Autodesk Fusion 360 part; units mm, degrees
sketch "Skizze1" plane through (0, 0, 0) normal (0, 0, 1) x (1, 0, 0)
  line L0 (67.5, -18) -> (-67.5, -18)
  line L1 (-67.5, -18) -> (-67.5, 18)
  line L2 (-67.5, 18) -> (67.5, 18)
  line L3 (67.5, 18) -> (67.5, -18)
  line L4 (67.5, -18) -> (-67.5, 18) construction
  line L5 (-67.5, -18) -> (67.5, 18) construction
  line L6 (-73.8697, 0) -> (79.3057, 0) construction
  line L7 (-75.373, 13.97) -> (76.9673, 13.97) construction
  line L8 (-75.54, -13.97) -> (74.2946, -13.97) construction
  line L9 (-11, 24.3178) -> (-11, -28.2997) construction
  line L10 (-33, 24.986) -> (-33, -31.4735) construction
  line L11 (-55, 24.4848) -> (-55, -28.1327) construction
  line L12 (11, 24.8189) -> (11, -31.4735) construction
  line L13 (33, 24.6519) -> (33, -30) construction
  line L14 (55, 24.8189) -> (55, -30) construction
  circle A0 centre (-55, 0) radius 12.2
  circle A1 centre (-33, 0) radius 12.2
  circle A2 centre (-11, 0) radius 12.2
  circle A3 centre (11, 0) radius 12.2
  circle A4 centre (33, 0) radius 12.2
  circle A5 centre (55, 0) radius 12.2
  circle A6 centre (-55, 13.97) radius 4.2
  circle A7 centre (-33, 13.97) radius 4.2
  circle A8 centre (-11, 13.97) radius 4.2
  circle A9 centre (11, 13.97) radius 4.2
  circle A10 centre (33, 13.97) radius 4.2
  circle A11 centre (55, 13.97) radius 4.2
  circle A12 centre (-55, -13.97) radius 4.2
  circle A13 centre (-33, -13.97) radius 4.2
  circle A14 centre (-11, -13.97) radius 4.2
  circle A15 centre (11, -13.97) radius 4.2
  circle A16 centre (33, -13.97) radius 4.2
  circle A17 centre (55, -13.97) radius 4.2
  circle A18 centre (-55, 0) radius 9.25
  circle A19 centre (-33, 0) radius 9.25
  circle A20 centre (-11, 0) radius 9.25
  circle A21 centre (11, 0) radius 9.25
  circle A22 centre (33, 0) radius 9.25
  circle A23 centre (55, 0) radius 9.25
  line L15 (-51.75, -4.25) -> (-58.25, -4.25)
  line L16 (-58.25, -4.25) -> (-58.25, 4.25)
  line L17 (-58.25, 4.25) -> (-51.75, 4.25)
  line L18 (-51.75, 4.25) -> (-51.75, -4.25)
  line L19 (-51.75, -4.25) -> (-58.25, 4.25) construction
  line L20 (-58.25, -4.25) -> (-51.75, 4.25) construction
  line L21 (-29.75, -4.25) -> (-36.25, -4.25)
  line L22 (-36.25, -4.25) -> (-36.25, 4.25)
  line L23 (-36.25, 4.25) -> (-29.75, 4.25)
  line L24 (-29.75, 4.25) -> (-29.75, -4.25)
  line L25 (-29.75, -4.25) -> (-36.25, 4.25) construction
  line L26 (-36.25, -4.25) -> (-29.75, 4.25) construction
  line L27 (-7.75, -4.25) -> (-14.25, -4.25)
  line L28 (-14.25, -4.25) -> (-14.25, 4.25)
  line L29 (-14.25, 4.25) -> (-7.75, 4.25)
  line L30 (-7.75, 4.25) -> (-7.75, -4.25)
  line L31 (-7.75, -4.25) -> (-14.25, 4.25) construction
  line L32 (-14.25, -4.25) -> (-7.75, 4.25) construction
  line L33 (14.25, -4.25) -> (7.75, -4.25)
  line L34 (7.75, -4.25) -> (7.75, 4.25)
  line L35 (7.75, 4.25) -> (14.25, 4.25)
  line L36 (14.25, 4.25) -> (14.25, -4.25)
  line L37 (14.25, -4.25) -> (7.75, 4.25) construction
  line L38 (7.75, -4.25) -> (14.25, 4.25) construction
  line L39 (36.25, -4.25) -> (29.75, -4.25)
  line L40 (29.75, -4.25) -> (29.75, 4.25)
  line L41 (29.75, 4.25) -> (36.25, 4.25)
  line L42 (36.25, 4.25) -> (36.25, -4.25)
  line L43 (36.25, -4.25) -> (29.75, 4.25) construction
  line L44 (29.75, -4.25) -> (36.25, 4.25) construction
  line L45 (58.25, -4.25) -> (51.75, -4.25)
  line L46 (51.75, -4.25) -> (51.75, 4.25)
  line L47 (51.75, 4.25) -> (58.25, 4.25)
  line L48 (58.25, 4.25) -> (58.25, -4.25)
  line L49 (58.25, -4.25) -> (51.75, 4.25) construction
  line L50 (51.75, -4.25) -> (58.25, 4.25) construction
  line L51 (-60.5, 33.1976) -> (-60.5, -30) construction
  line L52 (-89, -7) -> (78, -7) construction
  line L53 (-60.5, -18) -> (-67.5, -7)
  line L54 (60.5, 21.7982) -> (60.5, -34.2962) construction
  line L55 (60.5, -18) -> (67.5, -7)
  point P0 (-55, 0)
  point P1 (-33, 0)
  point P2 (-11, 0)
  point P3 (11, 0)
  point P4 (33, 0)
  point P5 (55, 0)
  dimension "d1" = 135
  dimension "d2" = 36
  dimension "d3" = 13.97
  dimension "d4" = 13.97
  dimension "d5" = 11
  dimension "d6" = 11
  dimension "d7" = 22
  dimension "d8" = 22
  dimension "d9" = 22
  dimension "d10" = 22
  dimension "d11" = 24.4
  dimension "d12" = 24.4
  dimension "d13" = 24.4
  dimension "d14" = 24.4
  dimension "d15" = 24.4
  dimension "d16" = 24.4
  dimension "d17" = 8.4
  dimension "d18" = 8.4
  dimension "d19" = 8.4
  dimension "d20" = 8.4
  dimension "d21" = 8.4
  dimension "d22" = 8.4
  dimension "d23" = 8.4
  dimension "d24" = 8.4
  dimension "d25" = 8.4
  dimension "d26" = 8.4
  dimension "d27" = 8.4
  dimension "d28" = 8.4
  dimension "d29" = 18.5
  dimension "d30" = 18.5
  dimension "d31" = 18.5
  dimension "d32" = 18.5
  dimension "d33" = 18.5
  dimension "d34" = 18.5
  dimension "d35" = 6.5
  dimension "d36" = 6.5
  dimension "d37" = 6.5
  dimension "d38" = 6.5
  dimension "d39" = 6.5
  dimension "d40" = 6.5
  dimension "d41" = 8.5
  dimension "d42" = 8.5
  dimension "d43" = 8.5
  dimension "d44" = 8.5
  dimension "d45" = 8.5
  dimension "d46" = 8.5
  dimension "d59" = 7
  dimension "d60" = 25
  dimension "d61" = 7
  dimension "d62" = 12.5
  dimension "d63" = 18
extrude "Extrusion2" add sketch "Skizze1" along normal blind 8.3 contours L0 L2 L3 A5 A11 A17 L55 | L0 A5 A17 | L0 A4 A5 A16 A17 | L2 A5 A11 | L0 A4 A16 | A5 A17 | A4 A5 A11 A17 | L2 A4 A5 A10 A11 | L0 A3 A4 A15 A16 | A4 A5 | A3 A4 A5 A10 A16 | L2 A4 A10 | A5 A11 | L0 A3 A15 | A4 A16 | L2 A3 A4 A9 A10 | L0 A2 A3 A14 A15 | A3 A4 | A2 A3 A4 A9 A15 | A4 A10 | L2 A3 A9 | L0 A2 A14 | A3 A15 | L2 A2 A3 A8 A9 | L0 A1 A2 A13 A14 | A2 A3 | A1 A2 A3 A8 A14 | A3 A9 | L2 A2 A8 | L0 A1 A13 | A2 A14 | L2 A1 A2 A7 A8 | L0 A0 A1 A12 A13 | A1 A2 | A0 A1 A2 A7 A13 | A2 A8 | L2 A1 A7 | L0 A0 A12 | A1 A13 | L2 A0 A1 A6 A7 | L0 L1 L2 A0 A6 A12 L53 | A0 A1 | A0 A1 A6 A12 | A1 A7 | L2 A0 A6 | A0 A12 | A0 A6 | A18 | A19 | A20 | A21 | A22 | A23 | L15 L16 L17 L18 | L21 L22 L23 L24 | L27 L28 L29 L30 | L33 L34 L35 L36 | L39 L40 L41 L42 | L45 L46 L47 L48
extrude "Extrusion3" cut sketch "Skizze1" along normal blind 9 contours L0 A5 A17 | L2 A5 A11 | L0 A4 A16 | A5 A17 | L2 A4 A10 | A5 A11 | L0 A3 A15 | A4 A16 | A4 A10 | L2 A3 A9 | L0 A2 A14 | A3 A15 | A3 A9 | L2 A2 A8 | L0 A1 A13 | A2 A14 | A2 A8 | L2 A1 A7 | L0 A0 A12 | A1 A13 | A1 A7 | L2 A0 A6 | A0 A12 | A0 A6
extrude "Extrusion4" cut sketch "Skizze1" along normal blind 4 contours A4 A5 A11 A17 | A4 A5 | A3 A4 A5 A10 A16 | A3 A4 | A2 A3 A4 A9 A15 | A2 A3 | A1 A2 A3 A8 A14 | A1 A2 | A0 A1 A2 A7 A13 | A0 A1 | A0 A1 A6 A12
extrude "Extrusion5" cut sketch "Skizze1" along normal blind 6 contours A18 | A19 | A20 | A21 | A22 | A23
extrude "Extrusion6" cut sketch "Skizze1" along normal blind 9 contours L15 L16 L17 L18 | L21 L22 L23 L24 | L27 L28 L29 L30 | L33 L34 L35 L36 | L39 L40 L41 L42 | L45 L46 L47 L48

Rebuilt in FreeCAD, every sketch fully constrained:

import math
import FreeCAD as App
import Part
import Sketcher
from FreeCAD import Vector
Q = App.Units.Quantity

doc = App.newDocument("Part")
body = doc.addObject("PartDesign::Body", "Body")

sketch1 = body.newObject("Sketcher::SketchObject", "Sketch")
sketch1.AttachmentSupport = (doc.getObject("XY_Plane"), [""])
sketch1.MapMode = "FlatFace"
sketch1.addGeometry(Part.LineSegment(Vector(60.5, -18, 0), Vector(67.5, -7, 0)), False)
sketch1.addGeometry(Part.LineSegment(Vector(67.5, -7, 0), Vector(67.5, 18, 0)), False)
sketch1.addGeometry(Part.LineSegment(Vector(67.5, 18, 0), Vector(-67.5, 18, 0)), False)
sketch1.addGeometry(Part.LineSegment(Vector(-67.5, 18, 0), Vector(-67.5, -7, 0)), False)
sketch1.addGeometry(Part.LineSegment(Vector(-67.5, -7, 0), Vector(-60.5, -18, 0)), False)
sketch1.addGeometry(Part.LineSegment(Vector(-60.5, -18, 0), Vector(60.5, -18, 0)), False)
sketch1.addConstraint(Sketcher.Constraint("Coincident", 0, 2, 1, 1))
sketch1.addConstraint(Sketcher.Constraint("Coincident", 1, 2, 2, 1))
sketch1.addConstraint(Sketcher.Constraint("Coincident", 2, 2, 3, 1))
sketch1.addConstraint(Sketcher.Constraint("Coincident", 3, 2, 4, 1))
sketch1.addConstraint(Sketcher.Constraint("Coincident", 4, 2, 5, 1))
sketch1.addConstraint(Sketcher.Constraint("Coincident", 5, 2, 0, 1))
sketch1.addConstraint(Sketcher.Constraint("Vertical", 1))
sketch1.addConstraint(Sketcher.Constraint("Horizontal", 2))
sketch1.addConstraint(Sketcher.Constraint("Vertical", 3))
sketch1.addConstraint(Sketcher.Constraint("Horizontal", 5))
sketch1.addConstraint(Sketcher.Constraint("Symmetric", 0, 2, 3, 2, -2))
sketch1.addConstraint(Sketcher.Constraint("Equal", 0, 4))
sketch1.addConstraint(Sketcher.Constraint("DistanceX", 2, 2, 2, 1, Q("135 mm")))
sketch1.addConstraint(Sketcher.Constraint("DistanceY", 1, 1, 1, 2, Q("25 mm")))
sketch1.addConstraint(Sketcher.Constraint("DistanceY", 0, 2, -1, 1, Q("7 mm")))
sketch1.addConstraint(Sketcher.Constraint("DistanceY", 4, 2, -1, 1, Q("18 mm")))
sketch1.addConstraint(Sketcher.Constraint("DistanceX", 3, 2, 4, 2, Q("7 mm")))
pad1 = body.newObject("PartDesign::Pad", "Pad")
pad1.Profile = sketch1
pad1.Length = 8.3

sketch2 = body.newObject("Sketcher::SketchObject", "Sketch001")
sketch2.AttachmentSupport = (doc.getObject("XY_Plane"), [""])
sketch2.MapMode = "FlatFace"
sketch2.addGeometry(Part.LineSegment(Vector(53.817164, -18, 0), Vector(56.182836, -18, 0)), False)
sketch2.addGeometry(Part.ArcOfCircle(Part.Circle(Vector(55, -13.97, 0), Vector(0, 0, 1), 4.2), math.radians(-73.642636), math.radians(253.642636)), False)
sketch2.addGeometry(Part.LineSegment(Vector(56.182836, 18, 0), Vector(53.817164, 18, 0)), False)
sketch2.addGeometry(Part.ArcOfCircle(Part.Circle(Vector(55, 13.97, 0), Vector(0, 0, 1), 4.2), math.radians(106.357364), math.radians(433.642636)), False)
sketch2.addGeometry(Part.LineSegment(Vector(31.817164, -18, 0), Vector(34.182836, -18, 0)), False)
sketch2.addGeometry(Part.ArcOfCircle(Part.Circle(Vector(33, -13.97, 0), Vector(0, 0, 1), 4.2), math.radians(-73.642636), math.radians(253.642636)), False)
sketch2.addGeometry(Part.LineSegment(Vector(34.182836, 18, 0), Vector(31.817164, 18, 0)), False)
sketch2.addGeometry(Part.ArcOfCircle(Part.Circle(Vector(33, 13.97, 0), Vector(0, 0, 1), 4.2), math.radians(106.357364), math.radians(433.642636)), False)
sketch2.addGeometry(Part.LineSegment(Vector(9.817164, -18, 0), Vector(12.182836, -18, 0)), False)
sketch2.addGeometry(Part.ArcOfCircle(Part.Circle(Vector(11, -13.97, 0), Vector(0, 0, 1), 4.2), math.radians(-73.642636), math.radians(253.642636)), False)
sketch2.addGeometry(Part.LineSegment(Vector(12.182836, 18, 0), Vector(9.817164, 18, 0)), False)
sketch2.addGeometry(Part.ArcOfCircle(Part.Circle(Vector(11, 13.97, 0), Vector(0, 0, 1), 4.2), math.radians(106.357364), math.radians(433.642636)), False)
sketch2.addGeometry(Part.LineSegment(Vector(-12.182836, -18, 0), Vector(-9.817164, -18, 0)), False)
sketch2.addGeometry(Part.ArcOfCircle(Part.Circle(Vector(-11, -13.97, 0), Vector(0, 0, 1), 4.2), math.radians(-73.642636), math.radians(253.642636)), False)
sketch2.addGeometry(Part.LineSegment(Vector(-9.817164, 18, 0), Vector(-12.182836, 18, 0)), False)
sketch2.addGeometry(Part.ArcOfCircle(Part.Circle(Vector(-11, 13.97, 0), Vector(0, 0, 1), 4.2), math.radians(106.357364), math.radians(433.642636)), False)
sketch2.addGeometry(Part.LineSegment(Vector(-34.182836, -18, 0), Vector(-31.817164, -18, 0)), False)
sketch2.addGeometry(Part.ArcOfCircle(Part.Circle(Vector(-33, -13.97, 0), Vector(0, 0, 1), 4.2), math.radians(-73.642636), math.radians(253.642636)), False)
sketch2.addGeometry(Part.LineSegment(Vector(-31.817164, 18, 0), Vector(-34.182836, 18, 0)), False)
sketch2.addGeometry(Part.ArcOfCircle(Part.Circle(Vector(-33, 13.97, 0), Vector(0, 0, 1), 4.2), math.radians(106.357364), math.radians(433.642636)), False)
sketch2.addGeometry(Part.LineSegment(Vector(-56.182836, -18, 0), Vector(-53.817164, -18, 0)), False)
sketch2.addGeometry(Part.ArcOfCircle(Part.Circle(Vector(-55, -13.97, 0), Vector(0, 0, 1), 4.2), math.radians(-73.642636), math.radians(253.642636)), False)
sketch2.addGeometry(Part.LineSegment(Vector(-53.817164, 18, 0), Vector(-56.182836, 18, 0)), False)
sketch2.addGeometry(Part.ArcOfCircle(Part.Circle(Vector(-55, 13.97, 0), Vector(0, 0, 1), 4.2), math.radians(106.357364), math.radians(433.642636)), False)
sketch2.addConstraint(Sketcher.Constraint("Coincident", 0, 1, 1, 2))
sketch2.addConstraint(Sketcher.Constraint("Coincident", 1, 1, 0, 2))
sketch2.addConstraint(Sketcher.Constraint("Coincident", 2, 1, 3, 2))
sketch2.addConstraint(Sketcher.Constraint("Coincident", 3, 1, 2, 2))
sketch2.addConstraint(Sketcher.Constraint("Coincident", 4, 1, 5, 2))
sketch2.addConstraint(Sketcher.Constraint("Coincident", 5, 1, 4, 2))
sketch2.addConstraint(Sketcher.Constraint("Coincident", 6, 1, 7, 2))
sketch2.addConstraint(Sketcher.Constraint("Coincident", 7, 1, 6, 2))
sketch2.addConstraint(Sketcher.Constraint("Coincident", 8, 1, 9, 2))
sketch2.addConstraint(Sketcher.Constraint("Coincident", 9, 1, 8, 2))
sketch2.addConstraint(Sketcher.Constraint("Coincident", 10, 1, 11, 2))
sketch2.addConstraint(Sketcher.Constraint("Coincident", 11, 1, 10, 2))
sketch2.addConstraint(Sketcher.Constraint("Coincident", 12, 1, 13, 2))
sketch2.addConstraint(Sketcher.Constraint("Coincident", 13, 1, 12, 2))
sketch2.addConstraint(Sketcher.Constraint("Coincident", 14, 1, 15, 2))
sketch2.addConstraint(Sketcher.Constraint("Coincident", 15, 1, 14, 2))
sketch2.addConstraint(Sketcher.Constraint("Coincident", 16, 1, 17, 2))
sketch2.addConstraint(Sketcher.Constraint("Coincident", 17, 1, 16, 2))
sketch2.addConstraint(Sketcher.Constraint("Coincident", 18, 1, 19, 2))
sketch2.addConstraint(Sketcher.Constraint("Coincident", 19, 1, 18, 2))
sketch2.addConstraint(Sketcher.Constraint("Coincident", 20, 1, 21, 2))
sketch2.addConstraint(Sketcher.Constraint("Coincident", 21, 1, 20, 2))
sketch2.addConstraint(Sketcher.Constraint("Coincident", 22, 1, 23, 2))
sketch2.addConstraint(Sketcher.Constraint("Coincident", 23, 1, 22, 2))
sketch2.addConstraint(Sketcher.Constraint("Horizontal", 0))
sketch2.addConstraint(Sketcher.Constraint("Horizontal", 2))
sketch2.addConstraint(Sketcher.Constraint("Horizontal", 4))
sketch2.addConstraint(Sketcher.Constraint("Horizontal", 6))
sketch2.addConstraint(Sketcher.Constraint("Horizontal", 8))
sketch2.addConstraint(Sketcher.Constraint("Horizontal", 10))
sketch2.addConstraint(Sketcher.Constraint("Horizontal", 12))
sketch2.addConstraint(Sketcher.Constraint("Horizontal", 14))
sketch2.addConstraint(Sketcher.Constraint("Horizontal", 16))
sketch2.addConstraint(Sketcher.Constraint("Horizontal", 18))
sketch2.addConstraint(Sketcher.Constraint("Horizontal", 20))
sketch2.addConstraint(Sketcher.Constraint("Horizontal", 22))
sketch2.addConstraint(Sketcher.Constraint("Equal", 1, 3))
sketch2.addConstraint(Sketcher.Constraint("Equal", 3, 5))
sketch2.addConstraint(Sketcher.Constraint("Equal", 5, 7))
sketch2.addConstraint(Sketcher.Constraint("Equal", 7, 9))
sketch2.addConstraint(Sketcher.Constraint("Equal", 9, 11))
sketch2.addConstraint(Sketcher.Constraint("Equal", 11, 13))
sketch2.addConstraint(Sketcher.Constraint("Equal", 13, 15))
sketch2.addConstraint(Sketcher.Constraint("Equal", 15, 17))
sketch2.addConstraint(Sketcher.Constraint("Equal", 17, 19))
sketch2.addConstraint(Sketcher.Constraint("Equal", 19, 21))
sketch2.addConstraint(Sketcher.Constraint("Equal", 21, 23))
sketch2.addConstraint(Sketcher.Constraint("Symmetric", 11, 3, 13, 3, -1, 1))
sketch2.addConstraint(Sketcher.Constraint("Symmetric", 9, 3, 15, 3, -1, 1))
sketch2.addConstraint(Sketcher.Constraint("Symmetric", 7, 3, 17, 3, -1, 1))
sketch2.addConstraint(Sketcher.Constraint("Symmetric", 5, 3, 19, 3, -1, 1))
sketch2.addConstraint(Sketcher.Constraint("Symmetric", 3, 3, 21, 3, -1, 1))
sketch2.addConstraint(Sketcher.Constraint("Symmetric", 1, 3, 23, 3, -1, 1))
sketch2.addConstraint(Sketcher.Constraint("Symmetric", 9, 3, 13, 3, -2))
sketch2.addConstraint(Sketcher.Constraint("Symmetric", 5, 3, 17, 3, -2))
sketch2.addConstraint(Sketcher.Constraint("Symmetric", 1, 3, 21, 3, -2))
sketch2.addConstraint(Sketcher.Constraint("Horizontal", 1, 3, 5, 3))
sketch2.addConstraint(Sketcher.Constraint("Horizontal", 5, 3, 9, 3))
sketch2.addConstraint(Sketcher.Constraint("Horizontal", 1, 1, 4, 1))
sketch2.addConstraint(Sketcher.Constraint("Horizontal", 3, 1, 6, 1))
sketch2.addConstraint(Sketcher.Constraint("Horizontal", 5, 1, 8, 1))
sketch2.addConstraint(Sketcher.Constraint("Horizontal", 7, 1, 10, 1))
sketch2.addConstraint(Sketcher.Constraint("Horizontal", 9, 1, 12, 1))
sketch2.addConstraint(Sketcher.Constraint("Horizontal", 11, 1, 14, 1))
sketch2.addConstraint(Sketcher.Constraint("Horizontal", 13, 1, 16, 1))
sketch2.addConstraint(Sketcher.Constraint("Horizontal", 15, 1, 18, 1))
sketch2.addConstraint(Sketcher.Constraint("Horizontal", 17, 1, 20, 1))
sketch2.addConstraint(Sketcher.Constraint("Horizontal", 19, 1, 22, 1))
sketch2.addConstraint(Sketcher.Constraint("Vertical", 1, 1, 2, 1))
sketch2.addConstraint(Sketcher.Constraint("Radius", 1, Q("4.2 mm")))
sketch2.addConstraint(Sketcher.Constraint("DistanceX", -1, 1, 9, 3, Q("11 mm")))
sketch2.addConstraint(Sketcher.Constraint("DistanceY", 0, 1, -1, 1, Q("18 mm")))
sketch2.addConstraint(Sketcher.Constraint("DistanceX", 5, 3, 1, 3, Q("22 mm")))
sketch2.addConstraint(Sketcher.Constraint("DistanceX", 9, 3, 5, 3, Q("22 mm")))
sketch2.addConstraint(Sketcher.Constraint("DistanceY", 1, 3, -1, 1, Q("13.97 mm")))
pocket1 = body.newObject("PartDesign::Pocket", "Pocket")
pocket1.Profile = sketch2
pocket1.Length = 9
pocket1.Reversed = True

sketch3 = body.newObject("Sketcher::SketchObject", "Sketch002")
sketch3.AttachmentSupport = (doc.getObject("XY_Plane"), [""])
sketch3.MapMode = "FlatFace"
sketch3.addGeometry(Part.ArcOfCircle(Part.Circle(Vector(55, 0, 0), Vector(0, 0, 1), 12.2), math.radians(-154.374395), math.radians(-106.775955)), False)
sketch3.addGeometry(Part.ArcOfCircle(Part.Circle(Vector(55, -13.97, 0), Vector(0, 0, 1), 4.2), math.radians(33.028298), math.radians(146.971702)), False)
sketch3.addGeometry(Part.ArcOfCircle(Part.Circle(Vector(55, 0, 0), Vector(0, 0, 1), 12.2), math.radians(-73.224045), math.radians(73.224045)), False)
sketch3.addGeometry(Part.ArcOfCircle(Part.Circle(Vector(55, 13.97, 0), Vector(0, 0, 1), 4.2), math.radians(-146.971702), math.radians(-33.028298)), False)
sketch3.addGeometry(Part.ArcOfCircle(Part.Circle(Vector(55, 0, 0), Vector(0, 0, 1), 12.2), math.radians(106.775955), math.radians(154.374395)), False)
sketch3.addGeometry(Part.ArcOfCircle(Part.Circle(Vector(33, 0, 0), Vector(0, 0, 1), 12.2), math.radians(25.625605), math.radians(73.224045)), False)
sketch3.addGeometry(Part.ArcOfCircle(Part.Circle(Vector(33, 13.97, 0), Vector(0, 0, 1), 4.2), math.radians(-146.971702), math.radians(-33.028298)), False)
sketch3.addGeometry(Part.ArcOfCircle(Part.Circle(Vector(33, 0, 0), Vector(0, 0, 1), 12.2), math.radians(106.775955), math.radians(154.374395)), False)
sketch3.addGeometry(Part.ArcOfCircle(Part.Circle(Vector(11, 0, 0), Vector(0, 0, 1), 12.2), math.radians(25.625605), math.radians(73.224045)), False)
sketch3.addGeometry(Part.ArcOfCircle(Part.Circle(Vector(11, 13.97, 0), Vector(0, 0, 1), 4.2), math.radians(-146.971702), math.radians(-33.028298)), False)
sketch3.addGeometry(Part.ArcOfCircle(Part.Circle(Vector(11, 0, 0), Vector(0, 0, 1), 12.2), math.radians(106.775955), math.radians(154.374395)), False)
sketch3.addGeometry(Part.ArcOfCircle(Part.Circle(Vector(-11, 0, 0), Vector(0, 0, 1), 12.2), math.radians(25.625605), math.radians(73.224045)), False)
sketch3.addGeometry(Part.ArcOfCircle(Part.Circle(Vector(-11, 13.97, 0), Vector(0, 0, 1), 4.2), math.radians(-146.971702), math.radians(-33.028298)), False)
sketch3.addGeometry(Part.ArcOfCircle(Part.Circle(Vector(-11, 0, 0), Vector(0, 0, 1), 12.2), math.radians(106.775955), math.radians(154.374395)), False)
sketch3.addGeometry(Part.ArcOfCircle(Part.Circle(Vector(-33, 0, 0), Vector(0, 0, 1), 12.2), math.radians(25.625605), math.radians(73.224045)), False)
sketch3.addGeometry(Part.ArcOfCircle(Part.Circle(Vector(-33, 13.97, 0), Vector(0, 0, 1), 4.2), math.radians(-146.971702), math.radians(-33.028298)), False)
sketch3.addGeometry(Part.ArcOfCircle(Part.Circle(Vector(-33, 0, 0), Vector(0, 0, 1), 12.2), math.radians(106.775955), math.radians(154.374395)), False)
sketch3.addGeometry(Part.ArcOfCircle(Part.Circle(Vector(-55, 0, 0), Vector(0, 0, 1), 12.2), math.radians(25.625605), math.radians(73.224045)), False)
sketch3.addGeometry(Part.ArcOfCircle(Part.Circle(Vector(-55, 13.97, 0), Vector(0, 0, 1), 4.2), math.radians(-146.971702), math.radians(-33.028298)), False)
sketch3.addGeometry(Part.ArcOfCircle(Part.Circle(Vector(-55, 0, 0), Vector(0, 0, 1), 12.2), math.radians(106.775955), math.radians(253.224045)), False)
sketch3.addGeometry(Part.ArcOfCircle(Part.Circle(Vector(-55, -13.97, 0), Vector(0, 0, 1), 4.2), math.radians(33.028298), math.radians(146.971702)), False)
sketch3.addGeometry(Part.ArcOfCircle(Part.Circle(Vector(-55, 0, 0), Vector(0, 0, 1), 12.2), math.radians(-73.224045), math.radians(-25.625605)), False)
sketch3.addGeometry(Part.ArcOfCircle(Part.Circle(Vector(-33, 0, 0), Vector(0, 0, 1), 12.2), math.radians(-154.374395), math.radians(-106.775955)), False)
sketch3.addGeometry(Part.ArcOfCircle(Part.Circle(Vector(-33, -13.97, 0), Vector(0, 0, 1), 4.2), math.radians(33.028298), math.radians(146.971702)), False)
sketch3.addGeometry(Part.ArcOfCircle(Part.Circle(Vector(-33, 0, 0), Vector(0, 0, 1), 12.2), math.radians(-73.224045), math.radians(-25.625605)), False)
sketch3.addGeometry(Part.ArcOfCircle(Part.Circle(Vector(-11, 0, 0), Vector(0, 0, 1), 12.2), math.radians(-154.374395), math.radians(-106.775955)), False)
sketch3.addGeometry(Part.ArcOfCircle(Part.Circle(Vector(-11, -13.97, 0), Vector(0, 0, 1), 4.2), math.radians(33.028298), math.radians(146.971702)), False)
sketch3.addGeometry(Part.ArcOfCircle(Part.Circle(Vector(-11, 0, 0), Vector(0, 0, 1), 12.2), math.radians(-73.224045), math.radians(-25.625605)), False)
sketch3.addGeometry(Part.ArcOfCircle(Part.Circle(Vector(11, 0, 0), Vector(0, 0, 1), 12.2), math.radians(-154.374395), math.radians(-106.775955)), False)
sketch3.addGeometry(Part.ArcOfCircle(Part.Circle(Vector(11, -13.97, 0), Vector(0, 0, 1), 4.2), math.radians(33.028298), math.radians(146.971702)), False)
sketch3.addGeometry(Part.ArcOfCircle(Part.Circle(Vector(11, 0, 0), Vector(0, 0, 1), 12.2), math.radians(-73.224045), math.radians(-25.625605)), False)
sketch3.addGeometry(Part.ArcOfCircle(Part.Circle(Vector(33, 0, 0), Vector(0, 0, 1), 12.2), math.radians(-154.374395), math.radians(-106.775955)), False)
sketch3.addGeometry(Part.ArcOfCircle(Part.Circle(Vector(33, -13.97, 0), Vector(0, 0, 1), 4.2), math.radians(33.028298), math.radians(146.971702)), False)
sketch3.addGeometry(Part.ArcOfCircle(Part.Circle(Vector(33, 0, 0), Vector(0, 0, 1), 12.2), math.radians(-73.224045), math.radians(-25.625605)), False)
sketch3.addGeometry(Part.Circle(Vector(55, 0, 0), Vector(0, 0, 1), 9.25), False)
sketch3.addGeometry(Part.Circle(Vector(33, 0, 0), Vector(0, 0, 1), 9.25), False)
sketch3.addGeometry(Part.Circle(Vector(11, 0, 0), Vector(0, 0, 1), 9.25), False)
sketch3.addGeometry(Part.Circle(Vector(-11, 0, 0), Vector(0, 0, 1), 9.25), False)
sketch3.addGeometry(Part.Circle(Vector(-33, 0, 0), Vector(0, 0, 1), 9.25), False)
sketch3.addGeometry(Part.Circle(Vector(-55, 0, 0), Vector(0, 0, 1), 9.25), False)
sketch3.addConstraint(Sketcher.Constraint("Coincident", 0, 2, 1, 2))
sketch3.addConstraint(Sketcher.Constraint("Coincident", 1, 1, 2, 1))
sketch3.addConstraint(Sketcher.Constraint("Coincident", 2, 2, 3, 2))
sketch3.addConstraint(Sketcher.Constraint("Coincident", 3, 1, 4, 1))
sketch3.addConstraint(Sketcher.Constraint("Coincident", 4, 2, 5, 1))
sketch3.addConstraint(Sketcher.Constraint("Coincident", 5, 2, 6, 2))
sketch3.addConstraint(Sketcher.Constraint("Coincident", 6, 1, 7, 1))
sketch3.addConstraint(Sketcher.Constraint("Coincident", 7, 2, 8, 1))
sketch3.addConstraint(Sketcher.Constraint("Coincident", 8, 2, 9, 2))
sketch3.addConstraint(Sketcher.Constraint("Coincident", 9, 1, 10, 1))
sketch3.addConstraint(Sketcher.Constraint("Coincident", 10, 2, 11, 1))
sketch3.addConstraint(Sketcher.Constraint("Coincident", 11, 2, 12, 2))
sketch3.addConstraint(Sketcher.Constraint("Coincident", 12, 1, 13, 1))
sketch3.addConstraint(Sketcher.Constraint("Coincident", 13, 2, 14, 1))
sketch3.addConstraint(Sketcher.Constraint("Coincident", 14, 2, 15, 2))
sketch3.addConstraint(Sketcher.Constraint("Coincident", 15, 1, 16, 1))
sketch3.addConstraint(Sketcher.Constraint("Coincident", 16, 2, 17, 1))
sketch3.addConstraint(Sketcher.Constraint("Coincident", 17, 2, 18, 2))
sketch3.addConstraint(Sketcher.Constraint("Coincident", 18, 1, 19, 1))
sketch3.addConstraint(Sketcher.Constraint("Coincident", 19, 2, 20, 2))
sketch3.addConstraint(Sketcher.Constraint("Coincident", 20, 1, 21, 1))
sketch3.addConstraint(Sketcher.Constraint("Coincident", 21, 2, 22, 1))
sketch3.addConstraint(Sketcher.Constraint("Coincident", 22, 2, 23, 2))
sketch3.addConstraint(Sketcher.Constraint("Coincident", 23, 1, 24, 1))
sketch3.addConstraint(Sketcher.Constraint("Coincident", 24, 2, 25, 1))
sketch3.addConstraint(Sketcher.Constraint("Coincident", 25, 2, 26, 2))
sketch3.addConstraint(Sketcher.Constraint("Coincident", 26, 1, 27, 1))
sketch3.addConstraint(Sketcher.Constraint("Coincident", 27, 2, 28, 1))
sketch3.addConstraint(Sketcher.Constraint("Coincident", 28, 2, 29, 2))
sketch3.addConstraint(Sketcher.Constraint("Coincident", 29, 1, 30, 1))
sketch3.addConstraint(Sketcher.Constraint("Coincident", 30, 2, 31, 1))
sketch3.addConstraint(Sketcher.Constraint("Coincident", 31, 2, 32, 2))
sketch3.addConstraint(Sketcher.Constraint("Coincident", 32, 1, 33, 1))
sketch3.addConstraint(Sketcher.Constraint("Coincident", 33, 2, 0, 1))
sketch3.addConstraint(Sketcher.Constraint("Coincident", 2, 3, 0, 3))
sketch3.addConstraint(Sketcher.Constraint("Coincident", 4, 3, 0, 3))
sketch3.addConstraint(Sketcher.Constraint("Coincident", 7, 3, 5, 3))
sketch3.addConstraint(Sketcher.Constraint("Coincident", 10, 3, 8, 3))
sketch3.addConstraint(Sketcher.Constraint("Coincident", 13, 3, 11, 3))
sketch3.addConstraint(Sketcher.Constraint("Coincident", 16, 3, 14, 3))
sketch3.addConstraint(Sketcher.Constraint("Coincident", 19, 3, 17, 3))
sketch3.addConstraint(Sketcher.Constraint("Coincident", 21, 3, 17, 3))
sketch3.addConstraint(Sketcher.Constraint("Coincident", 22, 3, 14, 3))
sketch3.addConstraint(Sketcher.Constraint("Coincident", 24, 3, 14, 3))
sketch3.addConstraint(Sketcher.Constraint("Coincident", 25, 3, 11, 3))
sketch3.addConstraint(Sketcher.Constraint("Coincident", 27, 3, 11, 3))
sketch3.addConstraint(Sketcher.Constraint("Coincident", 28, 3, 8, 3))
sketch3.addConstraint(Sketcher.Constraint("Coincident", 30, 3, 8, 3))
sketch3.addConstraint(Sketcher.Constraint("Coincident", 31, 3, 5, 3))
sketch3.addConstraint(Sketcher.Constraint("Coincident", 33, 3, 5, 3))
sketch3.addConstraint(Sketcher.Constraint("Coincident", 34, 3, 0, 3))
sketch3.addConstraint(Sketcher.Constraint("Coincident", 35, 3, 5, 3))
sketch3.addConstraint(Sketcher.Constraint("Coincident", 36, 3, 8, 3))
sketch3.addConstraint(Sketcher.Constraint("Coincident", 37, 3, 11, 3))
sketch3.addConstraint(Sketcher.Constraint("Coincident", 38, 3, 14, 3))
sketch3.addConstraint(Sketcher.Constraint("Coincident", 39, 3, 17, 3))
sketch3.addConstraint(Sketcher.Constraint("Equal", 0, 2))
sketch3.addConstraint(Sketcher.Constraint("Equal", 1, 3))
sketch3.addConstraint(Sketcher.Constraint("Equal", 2, 4))
sketch3.addConstraint(Sketcher.Constraint("Equal", 4, 5))
sketch3.addConstraint(Sketcher.Constraint("Equal", 3, 6))
sketch3.addConstraint(Sketcher.Constraint("Equal", 5, 7))
sketch3.addConstraint(Sketcher.Constraint("Equal", 7, 8))
sketch3.addConstraint(Sketcher.Constraint("Equal", 6, 9))
sketch3.addConstraint(Sketcher.Constraint("Equal", 8, 10))
sketch3.addConstraint(Sketcher.Constraint("Equal", 10, 11))
sketch3.addConstraint(Sketcher.Constraint("Equal", 9, 12))
sketch3.addConstraint(Sketcher.Constraint("Equal", 11, 13))
sketch3.addConstraint(Sketcher.Constraint("Equal", 13, 14))
sketch3.addConstraint(Sketcher.Constraint("Equal", 12, 15))
sketch3.addConstraint(Sketcher.Constraint("Equal", 14, 16))
sketch3.addConstraint(Sketcher.Constraint("Equal", 16, 17))
sketch3.addConstraint(Sketcher.Constraint("Equal", 15, 18))
sketch3.addConstraint(Sketcher.Constraint("Equal", 17, 19))
sketch3.addConstraint(Sketcher.Constraint("Equal", 18, 20))
sketch3.addConstraint(Sketcher.Constraint("Equal", 19, 21))
sketch3.addConstraint(Sketcher.Constraint("Equal", 21, 22))
sketch3.addConstraint(Sketcher.Constraint("Equal", 20, 23))
sketch3.addConstraint(Sketcher.Constraint("Equal", 22, 24))
sketch3.addConstraint(Sketcher.Constraint("Equal", 24, 25))
sketch3.addConstraint(Sketcher.Constraint("Equal", 23, 26))
sketch3.addConstraint(Sketcher.Constraint("Equal", 25, 27))
sketch3.addConstraint(Sketcher.Constraint("Equal", 27, 28))
sketch3.addConstraint(Sketcher.Constraint("Equal", 26, 29))
sketch3.addConstraint(Sketcher.Constraint("Equal", 28, 30))
sketch3.addConstraint(Sketcher.Constraint("Equal", 30, 31))
sketch3.addConstraint(Sketcher.Constraint("Equal", 29, 32))
sketch3.addConstraint(Sketcher.Constraint("Equal", 31, 33))
sketch3.addConstraint(Sketcher.Constraint("Equal", 34, 35))
sketch3.addConstraint(Sketcher.Constraint("Equal", 35, 36))
sketch3.addConstraint(Sketcher.Constraint("Equal", 36, 37))
sketch3.addConstraint(Sketcher.Constraint("Equal", 37, 38))
sketch3.addConstraint(Sketcher.Constraint("Equal", 38, 39))
sketch3.addConstraint(Sketcher.Constraint("Symmetric", 8, 3, 11, 3, -1, 1))
sketch3.addConstraint(Sketcher.Constraint("Symmetric", 5, 3, 14, 3, -1, 1))
sketch3.addConstraint(Sketcher.Constraint("Symmetric", 0, 3, 17, 3, -1, 1))
sketch3.addConstraint(Sketcher.Constraint("Symmetric", 1, 3, 18, 3, -1, 1))
sketch3.addConstraint(Sketcher.Constraint("Symmetric", 3, 3, 20, 3, -1, 1))
sketch3.addConstraint(Sketcher.Constraint("Symmetric", 6, 3, 23, 3, -1, 1))
sketch3.addConstraint(Sketcher.Constraint("Symmetric", 9, 3, 26, 3, -1, 1))
sketch3.addConstraint(Sketcher.Constraint("Symmetric", 12, 3, 29, 3, -1, 1))
sketch3.addConstraint(Sketcher.Constraint("Symmetric", 15, 3, 32, 3, -1, 1))
sketch3.addConstraint(Sketcher.Constraint("Symmetric", 9, 3, 12, 3, -2))
sketch3.addConstraint(Sketcher.Constraint("Symmetric", 6, 3, 15, 3, -2))
sketch3.addConstraint(Sketcher.Constraint("Symmetric", 3, 3, 18, 3, -2))
sketch3.addConstraint(Sketcher.Constraint("Symmetric", 7, 2, 13, 2, -2))
sketch3.addConstraint(Sketcher.Constraint("PointOnObject", 0, 3, -1))
sketch3.addConstraint(Sketcher.Constraint("Horizontal", 3, 3, 6, 3))
sketch3.addConstraint(Sketcher.Constraint("Horizontal", 6, 3, 9, 3))
sketch3.addConstraint(Sketcher.Constraint("Horizontal", 0, 2, 1, 1))
sketch3.addConstraint(Sketcher.Constraint("Horizontal", 3, 1, 5, 2))
sketch3.addConstraint(Sketcher.Constraint("Horizontal", 4, 2, 7, 2))
sketch3.addConstraint(Sketcher.Constraint("Horizontal", 6, 1, 8, 2))
sketch3.addConstraint(Sketcher.Constraint("Horizontal", 7, 2, 10, 2))
sketch3.addConstraint(Sketcher.Constraint("Diameter", 34, Q("18.5 mm")))
sketch3.addConstraint(Sketcher.Constraint("Radius", 0, Q("12.2 mm")))
sketch3.addConstraint(Sketcher.Constraint("Radius", 1, Q("4.2 mm")))
sketch3.addConstraint(Sketcher.Constraint("DistanceX", -1, 1, 8, 3, Q("11 mm")))
sketch3.addConstraint(Sketcher.Constraint("DistanceY", 1, 3, -1, 1, Q("13.97 mm")))
pocket2 = body.newObject("PartDesign::Pocket", "Pocket001")
pocket2.Profile = sketch3
pocket2.Length = 4
pocket2.Reversed = True

sketch4 = body.newObject("Sketcher::SketchObject", "Sketch003")
sketch4.AttachmentSupport = (doc.getObject("XY_Plane"), [""])
sketch4.MapMode = "FlatFace"
sketch4.addGeometry(Part.Circle(Vector(-55, 0, 0), Vector(0, 0, 1), 9.25), False)
sketch4.addGeometry(Part.LineSegment(Vector(-51.75, 4.25, 0), Vector(-51.75, -4.25, 0)), False)
sketch4.addGeometry(Part.LineSegment(Vector(-51.75, -4.25, 0), Vector(-58.25, -4.25, 0)), False)
sketch4.addGeometry(Part.LineSegment(Vector(-58.25, -4.25, 0), Vector(-58.25, 4.25, 0)), False)
sketch4.addGeometry(Part.LineSegment(Vector(-58.25, 4.25, 0), Vector(-51.75, 4.25, 0)), False)
sketch4.addGeometry(Part.Circle(Vector(-33, 0, 0), Vector(0, 0, 1), 9.25), False)
sketch4.addGeometry(Part.LineSegment(Vector(-29.75, 4.25, 0), Vector(-29.75, -4.25, 0)), False)
sketch4.addGeometry(Part.LineSegment(Vector(-29.75, -4.25, 0), Vector(-36.25, -4.25, 0)), False)
sketch4.addGeometry(Part.LineSegment(Vector(-36.25, -4.25, 0), Vector(-36.25, 4.25, 0)), False)
sketch4.addGeometry(Part.LineSegment(Vector(-36.25, 4.25, 0), Vector(-29.75, 4.25, 0)), False)
sketch4.addGeometry(Part.Circle(Vector(-11, 0, 0), Vector(0, 0, 1), 9.25), False)
sketch4.addGeometry(Part.LineSegment(Vector(-7.75, 4.25, 0), Vector(-7.75, -4.25, 0)), False)
sketch4.addGeometry(Part.LineSegment(Vector(-7.75, -4.25, 0), Vector(-14.25, -4.25, 0)), False)
sketch4.addGeometry(Part.LineSegment(Vector(-14.25, -4.25, 0), Vector(-14.25, 4.25, 0)), False)
sketch4.addGeometry(Part.LineSegment(Vector(-14.25, 4.25, 0), Vector(-7.75, 4.25, 0)), False)
sketch4.addGeometry(Part.Circle(Vector(11, 0, 0), Vector(0, 0, 1), 9.25), False)
sketch4.addGeometry(Part.LineSegment(Vector(14.25, 4.25, 0), Vector(14.25, -4.25, 0)), False)
sketch4.addGeometry(Part.LineSegment(Vector(14.25, -4.25, 0), Vector(7.75, -4.25, 0)), False)
sketch4.addGeometry(Part.LineSegment(Vector(7.75, -4.25, 0), Vector(7.75, 4.25, 0)), False)
sketch4.addGeometry(Part.LineSegment(Vector(7.75, 4.25, 0), Vector(14.25, 4.25, 0)), False)
sketch4.addGeometry(Part.Circle(Vector(33, 0, 0), Vector(0, 0, 1), 9.25), False)
sketch4.addGeometry(Part.LineSegment(Vector(36.25, 4.25, 0), Vector(36.25, -4.25, 0)), False)
sketch4.addGeometry(Part.LineSegment(Vector(36.25, -4.25, 0), Vector(29.75, -4.25, 0)), False)
sketch4.addGeometry(Part.LineSegment(Vector(29.75, -4.25, 0), Vector(29.75, 4.25, 0)), False)
sketch4.addGeometry(Part.LineSegment(Vector(29.75, 4.25, 0), Vector(36.25, 4.25, 0)), False)
sketch4.addGeometry(Part.Circle(Vector(55, 0, 0), Vector(0, 0, 1), 9.25), False)
sketch4.addGeometry(Part.LineSegment(Vector(58.25, 4.25, 0), Vector(58.25, -4.25, 0)), False)
sketch4.addGeometry(Part.LineSegment(Vector(58.25, -4.25, 0), Vector(51.75, -4.25, 0)), False)
sketch4.addGeometry(Part.LineSegment(Vector(51.75, -4.25, 0), Vector(51.75, 4.25, 0)), False)
sketch4.addGeometry(Part.LineSegment(Vector(51.75, 4.25, 0), Vector(58.25, 4.25, 0)), False)
sketch4.addConstraint(Sketcher.Constraint("Coincident", 1, 2, 2, 1))
sketch4.addConstraint(Sketcher.Constraint("Coincident", 2, 2, 3, 1))
sketch4.addConstraint(Sketcher.Constraint("Coincident", 3, 2, 4, 1))
sketch4.addConstraint(Sketcher.Constraint("Coincident", 4, 2, 1, 1))
sketch4.addConstraint(Sketcher.Constraint("Coincident", 6, 2, 7, 1))
sketch4.addConstraint(Sketcher.Constraint("Coincident", 7, 2, 8, 1))
sketch4.addConstraint(Sketcher.Constraint("Coincident", 8, 2, 9, 1))
sketch4.addConstraint(Sketcher.Constraint("Coincident", 9, 2, 6, 1))
sketch4.addConstraint(Sketcher.Constraint("Coincident", 11, 2, 12, 1))
sketch4.addConstraint(Sketcher.Constraint("Coincident", 12, 2, 13, 1))
sketch4.addConstraint(Sketcher.Constraint("Coincident", 13, 2, 14, 1))
sketch4.addConstraint(Sketcher.Constraint("Coincident", 14, 2, 11, 1))
sketch4.addConstraint(Sketcher.Constraint("Coincident", 16, 2, 17, 1))
sketch4.addConstraint(Sketcher.Constraint("Coincident", 17, 2, 18, 1))
sketch4.addConstraint(Sketcher.Constraint("Coincident", 18, 2, 19, 1))
sketch4.addConstraint(Sketcher.Constraint("Coincident", 19, 2, 16, 1))
sketch4.addConstraint(Sketcher.Constraint("Coincident", 21, 2, 22, 1))
sketch4.addConstraint(Sketcher.Constraint("Coincident", 22, 2, 23, 1))
sketch4.addConstraint(Sketcher.Constraint("Coincident", 23, 2, 24, 1))
sketch4.addConstraint(Sketcher.Constraint("Coincident", 24, 2, 21, 1))
sketch4.addConstraint(Sketcher.Constraint("Coincident", 26, 2, 27, 1))
sketch4.addConstraint(Sketcher.Constraint("Coincident", 27, 2, 28, 1))
sketch4.addConstraint(Sketcher.Constraint("Coincident", 28, 2, 29, 1))
sketch4.addConstraint(Sketcher.Constraint("Coincident", 29, 2, 26, 1))
sketch4.addConstraint(Sketcher.Constraint("Vertical", 1))
sketch4.addConstraint(Sketcher.Constraint("Horizontal", 2))
sketch4.addConstraint(Sketcher.Constraint("Vertical", 3))
sketch4.addConstraint(Sketcher.Constraint("Horizontal", 4))
sketch4.addConstraint(Sketcher.Constraint("Vertical", 6))
sketch4.addConstraint(Sketcher.Constraint("Horizontal", 7))
sketch4.addConstraint(Sketcher.Constraint("Vertical", 8))
sketch4.addConstraint(Sketcher.Constraint("Horizontal", 9))
sketch4.addConstraint(Sketcher.Constraint("Vertical", 11))
sketch4.addConstraint(Sketcher.Constraint("Horizontal", 12))
sketch4.addConstraint(Sketcher.Constraint("Vertical", 13))
sketch4.addConstraint(Sketcher.Constraint("Horizontal", 14))
sketch4.addConstraint(Sketcher.Constraint("Vertical", 16))
sketch4.addConstraint(Sketcher.Constraint("Horizontal", 17))
sketch4.addConstraint(Sketcher.Constraint("Vertical", 18))
sketch4.addConstraint(Sketcher.Constraint("Horizontal", 19))
sketch4.addConstraint(Sketcher.Constraint("Vertical", 21))
sketch4.addConstraint(Sketcher.Constraint("Horizontal", 22))
sketch4.addConstraint(Sketcher.Constraint("Vertical", 23))
sketch4.addConstraint(Sketcher.Constraint("Horizontal", 24))
sketch4.addConstraint(Sketcher.Constraint("Vertical", 26))
sketch4.addConstraint(Sketcher.Constraint("Horizontal", 27))
sketch4.addConstraint(Sketcher.Constraint("Vertical", 28))
sketch4.addConstraint(Sketcher.Constraint("Horizontal", 29))
sketch4.addConstraint(Sketcher.Constraint("Equal", 0, 5))
sketch4.addConstraint(Sketcher.Constraint("Equal", 5, 10))
sketch4.addConstraint(Sketcher.Constraint("Equal", 10, 15))
sketch4.addConstraint(Sketcher.Constraint("Equal", 15, 20))
sketch4.addConstraint(Sketcher.Constraint("Equal", 20, 25))
sketch4.addConstraint(Sketcher.Constraint("Symmetric", 10, 3, 15, 3, -1, 1))
sketch4.addConstraint(Sketcher.Constraint("Symmetric", 5, 3, 20, 3, -1, 1))
sketch4.addConstraint(Sketcher.Constraint("Symmetric", 0, 3, 25, 3, -1, 1))
sketch4.addConstraint(Sketcher.Constraint("Symmetric", 13, 2, 16, 2, -1, 1))
sketch4.addConstraint(Sketcher.Constraint("Symmetric", 11, 2, 18, 2, -1, 1))
sketch4.addConstraint(Sketcher.Constraint("Symmetric", 8, 2, 21, 2, -1, 1))
sketch4.addConstraint(Sketcher.Constraint("Symmetric", 6, 2, 23, 2, -1, 1))
sketch4.addConstraint(Sketcher.Constraint("Symmetric", 3, 2, 26, 2, -1, 1))
sketch4.addConstraint(Sketcher.Constraint("Symmetric", 1, 2, 28, 2, -1, 1))
sketch4.addConstraint(Sketcher.Constraint("PointOnObject", 0, 3, -1))
sketch4.addConstraint(Sketcher.Constraint("PointOnObject", 5, 3, -1))
sketch4.addConstraint(Sketcher.Constraint("PointOnObject", 10, 3, -1))
sketch4.addConstraint(Sketcher.Constraint("Horizontal", 2, 2, 6, 2))
sketch4.addConstraint(Sketcher.Constraint("Horizontal", 4, 2, 8, 2))
sketch4.addConstraint(Sketcher.Constraint("Horizontal", 7, 2, 11, 2))
sketch4.addConstraint(Sketcher.Constraint("Horizontal", 9, 2, 13, 2))
sketch4.addConstraint(Sketcher.Constraint("Horizontal", 12, 2, 16, 2))
sketch4.addConstraint(Sketcher.Constraint("Equal", 4, 7))
sketch4.addConstraint(Sketcher.Constraint("Equal", 9, 12))
sketch4.addConstraint(Sketcher.Constraint("Diameter", 0, Q("18.5 mm")))
sketch4.addConstraint(Sketcher.Constraint("DistanceX", 2, 2, 2, 1, Q("6.5 mm")))
sketch4.addConstraint(Sketcher.Constraint("DistanceY", 1, 2, 1, 1, Q("8.5 mm")))
sketch4.addConstraint(Sketcher.Constraint("DistanceX", 10, 3, -1, 1, Q("11 mm")))
sketch4.addConstraint(Sketcher.Constraint("DistanceX", 0, 3, 5, 3, Q("22 mm")))
sketch4.addConstraint(Sketcher.Constraint("DistanceX", 5, 3, 10, 3, Q("22 mm")))
sketch4.addConstraint(Sketcher.Constraint("DistanceX", 1, 2, 6, 2, Q("22 mm")))
sketch4.addConstraint(Sketcher.Constraint("DistanceX", 6, 2, 11, 2, Q("22 mm")))
sketch4.addConstraint(Sketcher.Constraint("DistanceX", 11, 2, 16, 2, Q("22 mm")))
pocket3 = body.newObject("PartDesign::Pocket", "Pocket002")
pocket3.Profile = sketch4
pocket3.Length = 6
pocket3.Reversed = True

sketch5 = body.newObject("Sketcher::SketchObject", "Sketch004")
sketch5.AttachmentSupport = (doc.getObject("XY_Plane"), [""])
sketch5.MapMode = "FlatFace"
sketch5.addGeometry(Part.LineSegment(Vector(-58.25, -4.25, 0), Vector(-51.75, -4.25, 0)), False)
sketch5.addGeometry(Part.LineSegment(Vector(-51.75, -4.25, 0), Vector(-51.75, 4.25, 0)), False)
sketch5.addGeometry(Part.LineSegment(Vector(-51.75, 4.25, 0), Vector(-58.25, 4.25, 0)), False)
sketch5.addGeometry(Part.LineSegment(Vector(-58.25, 4.25, 0), Vector(-58.25, -4.25, 0)), False)
sketch5.addGeometry(Part.LineSegment(Vector(-36.25, -4.25, 0), Vector(-29.75, -4.25, 0)), False)
sketch5.addGeometry(Part.LineSegment(Vector(-29.75, -4.25, 0), Vector(-29.75, 4.25, 0)), False)
sketch5.addGeometry(Part.LineSegment(Vector(-29.75, 4.25, 0), Vector(-36.25, 4.25, 0)), False)
sketch5.addGeometry(Part.LineSegment(Vector(-36.25, 4.25, 0), Vector(-36.25, -4.25, 0)), False)
sketch5.addGeometry(Part.LineSegment(Vector(-14.25, -4.25, 0), Vector(-7.75, -4.25, 0)), False)
sketch5.addGeometry(Part.LineSegment(Vector(-7.75, -4.25, 0), Vector(-7.75, 4.25, 0)), False)
sketch5.addGeometry(Part.LineSegment(Vector(-7.75, 4.25, 0), Vector(-14.25, 4.25, 0)), False)
sketch5.addGeometry(Part.LineSegment(Vector(-14.25, 4.25, 0), Vector(-14.25, -4.25, 0)), False)
sketch5.addGeometry(Part.LineSegment(Vector(7.75, -4.25, 0), Vector(14.25, -4.25, 0)), False)
sketch5.addGeometry(Part.LineSegment(Vector(14.25, -4.25, 0), Vector(14.25, 4.25, 0)), False)
sketch5.addGeometry(Part.LineSegment(Vector(14.25, 4.25, 0), Vector(7.75, 4.25, 0)), False)
sketch5.addGeometry(Part.LineSegment(Vector(7.75, 4.25, 0), Vector(7.75, -4.25, 0)), False)
sketch5.addGeometry(Part.LineSegment(Vector(29.75, -4.25, 0), Vector(36.25, -4.25, 0)), False)
sketch5.addGeometry(Part.LineSegment(Vector(36.25, -4.25, 0), Vector(36.25, 4.25, 0)), False)
sketch5.addGeometry(Part.LineSegment(Vector(36.25, 4.25, 0), Vector(29.75, 4.25, 0)), False)
sketch5.addGeometry(Part.LineSegment(Vector(29.75, 4.25, 0), Vector(29.75, -4.25, 0)), False)
sketch5.addGeometry(Part.LineSegment(Vector(51.75, -4.25, 0), Vector(58.25, -4.25, 0)), False)
sketch5.addGeometry(Part.LineSegment(Vector(58.25, -4.25, 0), Vector(58.25, 4.25, 0)), False)
sketch5.addGeometry(Part.LineSegment(Vector(58.25, 4.25, 0), Vector(51.75, 4.25, 0)), False)
sketch5.addGeometry(Part.LineSegment(Vector(51.75, 4.25, 0), Vector(51.75, -4.25, 0)), False)
sketch5.addConstraint(Sketcher.Constraint("Coincident", 0, 2, 1, 1))
sketch5.addConstraint(Sketcher.Constraint("Coincident", 1, 2, 2, 1))
sketch5.addConstraint(Sketcher.Constraint("Coincident", 2, 2, 3, 1))
sketch5.addConstraint(Sketcher.Constraint("Coincident", 3, 2, 0, 1))
sketch5.addConstraint(Sketcher.Constraint("Coincident", 4, 2, 5, 1))
sketch5.addConstraint(Sketcher.Constraint("Coincident", 5, 2, 6, 1))
sketch5.addConstraint(Sketcher.Constraint("Coincident", 6, 2, 7, 1))
sketch5.addConstraint(Sketcher.Constraint("Coincident", 7, 2, 4, 1))
sketch5.addConstraint(Sketcher.Constraint("Coincident", 8, 2, 9, 1))
sketch5.addConstraint(Sketcher.Constraint("Coincident", 9, 2, 10, 1))
sketch5.addConstraint(Sketcher.Constraint("Coincident", 10, 2, 11, 1))
sketch5.addConstraint(Sketcher.Constraint("Coincident", 11, 2, 8, 1))
sketch5.addConstraint(Sketcher.Constraint("Coincident", 12, 2, 13, 1))
sketch5.addConstraint(Sketcher.Constraint("Coincident", 13, 2, 14, 1))
sketch5.addConstraint(Sketcher.Constraint("Coincident", 14, 2, 15, 1))
sketch5.addConstraint(Sketcher.Constraint("Coincident", 15, 2, 12, 1))
sketch5.addConstraint(Sketcher.Constraint("Coincident", 16, 2, 17, 1))
sketch5.addConstraint(Sketcher.Constraint("Coincident", 17, 2, 18, 1))
sketch5.addConstraint(Sketcher.Constraint("Coincident", 18, 2, 19, 1))
sketch5.addConstraint(Sketcher.Constraint("Coincident", 19, 2, 16, 1))
sketch5.addConstraint(Sketcher.Constraint("Coincident", 20, 2, 21, 1))
sketch5.addConstraint(Sketcher.Constraint("Coincident", 21, 2, 22, 1))
sketch5.addConstraint(Sketcher.Constraint("Coincident", 22, 2, 23, 1))
sketch5.addConstraint(Sketcher.Constraint("Coincident", 23, 2, 20, 1))
sketch5.addConstraint(Sketcher.Constraint("Horizontal", 0))
sketch5.addConstraint(Sketcher.Constraint("Vertical", 1))
sketch5.addConstraint(Sketcher.Constraint("Horizontal", 2))
sketch5.addConstraint(Sketcher.Constraint("Vertical", 3))
sketch5.addConstraint(Sketcher.Constraint("Horizontal", 4))
sketch5.addConstraint(Sketcher.Constraint("Vertical", 5))
sketch5.addConstraint(Sketcher.Constraint("Horizontal", 6))
sketch5.addConstraint(Sketcher.Constraint("Vertical", 7))
sketch5.addConstraint(Sketcher.Constraint("Horizontal", 8))
sketch5.addConstraint(Sketcher.Constraint("Vertical", 9))
sketch5.addConstraint(Sketcher.Constraint("Horizontal", 10))
sketch5.addConstraint(Sketcher.Constraint("Vertical", 11))
sketch5.addConstraint(Sketcher.Constraint("Horizontal", 12))
sketch5.addConstraint(Sketcher.Constraint("Vertical", 13))
sketch5.addConstraint(Sketcher.Constraint("Horizontal", 14))
sketch5.addConstraint(Sketcher.Constraint("Vertical", 15))
sketch5.addConstraint(Sketcher.Constraint("Horizontal", 16))
sketch5.addConstraint(Sketcher.Constraint("Vertical", 17))
sketch5.addConstraint(Sketcher.Constraint("Horizontal", 18))
sketch5.addConstraint(Sketcher.Constraint("Vertical", 19))
sketch5.addConstraint(Sketcher.Constraint("Horizontal", 20))
sketch5.addConstraint(Sketcher.Constraint("Vertical", 21))
sketch5.addConstraint(Sketcher.Constraint("Horizontal", 22))
sketch5.addConstraint(Sketcher.Constraint("Vertical", 23))
sketch5.addConstraint(Sketcher.Constraint("Symmetric", 10, 2, 12, 2, -1, 1))
sketch5.addConstraint(Sketcher.Constraint("Symmetric", 8, 2, 14, 2, -1, 1))
sketch5.addConstraint(Sketcher.Constraint("Symmetric", 6, 2, 16, 2, -1, 1))
sketch5.addConstraint(Sketcher.Constraint("Symmetric", 4, 2, 18, 2, -1, 1))
sketch5.addConstraint(Sketcher.Constraint("Symmetric", 2, 2, 20, 2, -1, 1))
sketch5.addConstraint(Sketcher.Constraint("Symmetric", 0, 2, 22, 2, -1, 1))
sketch5.addConstraint(Sketcher.Constraint("Horizontal", 3, 2, 4, 2))
sketch5.addConstraint(Sketcher.Constraint("Horizontal", 2, 2, 5, 2))
sketch5.addConstraint(Sketcher.Constraint("Horizontal", 7, 2, 8, 2))
sketch5.addConstraint(Sketcher.Constraint("Horizontal", 6, 2, 9, 2))
sketch5.addConstraint(Sketcher.Constraint("Horizontal", 11, 2, 12, 2))
sketch5.addConstraint(Sketcher.Constraint("Equal", 2, 4))
sketch5.addConstraint(Sketcher.Constraint("Equal", 6, 8))
sketch5.addConstraint(Sketcher.Constraint("DistanceX", 0, 1, 0, 2, Q("6.5 mm")))
sketch5.addConstraint(Sketcher.Constraint("DistanceY", 1, 1, 1, 2, Q("8.5 mm")))
sketch5.addConstraint(Sketcher.Constraint("DistanceX", 0, 2, 4, 2, Q("22 mm")))
sketch5.addConstraint(Sketcher.Constraint("DistanceX", 4, 2, 8, 2, Q("22 mm")))
sketch5.addConstraint(Sketcher.Constraint("DistanceX", 8, 2, 12, 2, Q("22 mm")))
pocket4 = body.newObject("PartDesign::Pocket", "Pocket003")
pocket4.Profile = sketch5
pocket4.Length = 9
pocket4.Reversed = True

doc.recompute()
